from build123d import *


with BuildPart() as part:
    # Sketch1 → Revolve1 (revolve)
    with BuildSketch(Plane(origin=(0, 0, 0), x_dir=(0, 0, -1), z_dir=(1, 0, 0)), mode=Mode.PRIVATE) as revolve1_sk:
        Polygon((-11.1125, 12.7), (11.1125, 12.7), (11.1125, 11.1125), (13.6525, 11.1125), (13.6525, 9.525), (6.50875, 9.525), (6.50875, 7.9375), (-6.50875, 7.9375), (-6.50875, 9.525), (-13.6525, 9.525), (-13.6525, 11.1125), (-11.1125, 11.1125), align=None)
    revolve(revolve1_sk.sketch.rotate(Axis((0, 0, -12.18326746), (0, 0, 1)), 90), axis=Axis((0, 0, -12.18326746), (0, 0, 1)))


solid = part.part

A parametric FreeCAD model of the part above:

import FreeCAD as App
import Part
import Sketcher

V = App.Vector
Q = App.Units.Quantity


def add_polygon(sketch, points):
    """Adds a closed chain of lines whose ends are joined by coincident constraints."""
    first, n = sketch.GeometryCount, len(points)
    for a, b in zip(points, points[1:] + points[:1]):
        sketch.addGeometry(Part.LineSegment(App.Vector(*a, 0), App.Vector(*b, 0)), False)
    for i in range(n):
        sketch.addConstraint(Sketcher.Constraint("Coincident", first + i, 2, first + (i + 1) % n, 1))

doc = App.newDocument("Part")
body = doc.addObject("PartDesign::Body", "Body")

# Sketch on YZ plane
sketch1 = body.newObject("Sketcher::SketchObject", "Sketch")
sketch1.AttachmentSupport = (doc.getObject("YZ_Plane"), [""])
sketch1.MapMode = "FlatFace"
add_polygon(sketch1, [(12.7, -11.1), (12.7, 11.1), (11.1, 11.1), (11.1, 13.7), (9.5, 13.7), (9.5, 6.5), (7.9, 6.5), (7.9, -6.5), (9.5, -6.5), (9.5, -13.7), (11.1, -13.7), (11.1, -11.1)])  # lines 0-11
sketch1.addConstraint([
    Sketcher.Constraint("Vertical", 0),
    Sketcher.Constraint("Horizontal", 1),
    Sketcher.Constraint("Vertical", 2),
    Sketcher.Constraint("Horizontal", 3),
    Sketcher.Constraint("Vertical", 4),
    Sketcher.Constraint("Horizontal", 5),
    Sketcher.Constraint("Vertical", 6),
    Sketcher.Constraint("Horizontal", 7),
    Sketcher.Constraint("Vertical", 8),
    Sketcher.Constraint("Horizontal", 9),
    Sketcher.Constraint("Vertical", 10),
    Sketcher.Constraint("Horizontal", 11),
    Sketcher.Constraint("Symmetric", 4, 2, 7, 2, -1),
    Sketcher.Constraint("Symmetric", 2, 2, 9, 2, -1),
    Sketcher.Constraint("Equal", 1, 3),
    Sketcher.Constraint("Equal", 3, 5),
    Sketcher.Constraint("Equal", 2, 10),
    Sketcher.Constraint("DistanceY", 2, 1, 2, 2, Q("0.1 in")),
    Sketcher.Constraint("DistanceX", -1, 1, 0, 2, Q("0.5 in")),
    Sketcher.Constraint("DistanceX", 1, 2, 1, 1, Q("0.0625 in")),
    Sketcher.Constraint("DistanceY", 0, 1, 0, 2, Q("0.875 in")),
    Sketcher.Constraint("DistanceY", 4, 2, 4, 1, Q("0.28125 in")),
])
revolution = body.newObject("PartDesign::Revolution", "Revolution")
revolution.Profile = sketch1
revolution.ReferenceAxis = (sketch1, ["V_Axis"])
revolution.Angle = 360

doc.recompute()
